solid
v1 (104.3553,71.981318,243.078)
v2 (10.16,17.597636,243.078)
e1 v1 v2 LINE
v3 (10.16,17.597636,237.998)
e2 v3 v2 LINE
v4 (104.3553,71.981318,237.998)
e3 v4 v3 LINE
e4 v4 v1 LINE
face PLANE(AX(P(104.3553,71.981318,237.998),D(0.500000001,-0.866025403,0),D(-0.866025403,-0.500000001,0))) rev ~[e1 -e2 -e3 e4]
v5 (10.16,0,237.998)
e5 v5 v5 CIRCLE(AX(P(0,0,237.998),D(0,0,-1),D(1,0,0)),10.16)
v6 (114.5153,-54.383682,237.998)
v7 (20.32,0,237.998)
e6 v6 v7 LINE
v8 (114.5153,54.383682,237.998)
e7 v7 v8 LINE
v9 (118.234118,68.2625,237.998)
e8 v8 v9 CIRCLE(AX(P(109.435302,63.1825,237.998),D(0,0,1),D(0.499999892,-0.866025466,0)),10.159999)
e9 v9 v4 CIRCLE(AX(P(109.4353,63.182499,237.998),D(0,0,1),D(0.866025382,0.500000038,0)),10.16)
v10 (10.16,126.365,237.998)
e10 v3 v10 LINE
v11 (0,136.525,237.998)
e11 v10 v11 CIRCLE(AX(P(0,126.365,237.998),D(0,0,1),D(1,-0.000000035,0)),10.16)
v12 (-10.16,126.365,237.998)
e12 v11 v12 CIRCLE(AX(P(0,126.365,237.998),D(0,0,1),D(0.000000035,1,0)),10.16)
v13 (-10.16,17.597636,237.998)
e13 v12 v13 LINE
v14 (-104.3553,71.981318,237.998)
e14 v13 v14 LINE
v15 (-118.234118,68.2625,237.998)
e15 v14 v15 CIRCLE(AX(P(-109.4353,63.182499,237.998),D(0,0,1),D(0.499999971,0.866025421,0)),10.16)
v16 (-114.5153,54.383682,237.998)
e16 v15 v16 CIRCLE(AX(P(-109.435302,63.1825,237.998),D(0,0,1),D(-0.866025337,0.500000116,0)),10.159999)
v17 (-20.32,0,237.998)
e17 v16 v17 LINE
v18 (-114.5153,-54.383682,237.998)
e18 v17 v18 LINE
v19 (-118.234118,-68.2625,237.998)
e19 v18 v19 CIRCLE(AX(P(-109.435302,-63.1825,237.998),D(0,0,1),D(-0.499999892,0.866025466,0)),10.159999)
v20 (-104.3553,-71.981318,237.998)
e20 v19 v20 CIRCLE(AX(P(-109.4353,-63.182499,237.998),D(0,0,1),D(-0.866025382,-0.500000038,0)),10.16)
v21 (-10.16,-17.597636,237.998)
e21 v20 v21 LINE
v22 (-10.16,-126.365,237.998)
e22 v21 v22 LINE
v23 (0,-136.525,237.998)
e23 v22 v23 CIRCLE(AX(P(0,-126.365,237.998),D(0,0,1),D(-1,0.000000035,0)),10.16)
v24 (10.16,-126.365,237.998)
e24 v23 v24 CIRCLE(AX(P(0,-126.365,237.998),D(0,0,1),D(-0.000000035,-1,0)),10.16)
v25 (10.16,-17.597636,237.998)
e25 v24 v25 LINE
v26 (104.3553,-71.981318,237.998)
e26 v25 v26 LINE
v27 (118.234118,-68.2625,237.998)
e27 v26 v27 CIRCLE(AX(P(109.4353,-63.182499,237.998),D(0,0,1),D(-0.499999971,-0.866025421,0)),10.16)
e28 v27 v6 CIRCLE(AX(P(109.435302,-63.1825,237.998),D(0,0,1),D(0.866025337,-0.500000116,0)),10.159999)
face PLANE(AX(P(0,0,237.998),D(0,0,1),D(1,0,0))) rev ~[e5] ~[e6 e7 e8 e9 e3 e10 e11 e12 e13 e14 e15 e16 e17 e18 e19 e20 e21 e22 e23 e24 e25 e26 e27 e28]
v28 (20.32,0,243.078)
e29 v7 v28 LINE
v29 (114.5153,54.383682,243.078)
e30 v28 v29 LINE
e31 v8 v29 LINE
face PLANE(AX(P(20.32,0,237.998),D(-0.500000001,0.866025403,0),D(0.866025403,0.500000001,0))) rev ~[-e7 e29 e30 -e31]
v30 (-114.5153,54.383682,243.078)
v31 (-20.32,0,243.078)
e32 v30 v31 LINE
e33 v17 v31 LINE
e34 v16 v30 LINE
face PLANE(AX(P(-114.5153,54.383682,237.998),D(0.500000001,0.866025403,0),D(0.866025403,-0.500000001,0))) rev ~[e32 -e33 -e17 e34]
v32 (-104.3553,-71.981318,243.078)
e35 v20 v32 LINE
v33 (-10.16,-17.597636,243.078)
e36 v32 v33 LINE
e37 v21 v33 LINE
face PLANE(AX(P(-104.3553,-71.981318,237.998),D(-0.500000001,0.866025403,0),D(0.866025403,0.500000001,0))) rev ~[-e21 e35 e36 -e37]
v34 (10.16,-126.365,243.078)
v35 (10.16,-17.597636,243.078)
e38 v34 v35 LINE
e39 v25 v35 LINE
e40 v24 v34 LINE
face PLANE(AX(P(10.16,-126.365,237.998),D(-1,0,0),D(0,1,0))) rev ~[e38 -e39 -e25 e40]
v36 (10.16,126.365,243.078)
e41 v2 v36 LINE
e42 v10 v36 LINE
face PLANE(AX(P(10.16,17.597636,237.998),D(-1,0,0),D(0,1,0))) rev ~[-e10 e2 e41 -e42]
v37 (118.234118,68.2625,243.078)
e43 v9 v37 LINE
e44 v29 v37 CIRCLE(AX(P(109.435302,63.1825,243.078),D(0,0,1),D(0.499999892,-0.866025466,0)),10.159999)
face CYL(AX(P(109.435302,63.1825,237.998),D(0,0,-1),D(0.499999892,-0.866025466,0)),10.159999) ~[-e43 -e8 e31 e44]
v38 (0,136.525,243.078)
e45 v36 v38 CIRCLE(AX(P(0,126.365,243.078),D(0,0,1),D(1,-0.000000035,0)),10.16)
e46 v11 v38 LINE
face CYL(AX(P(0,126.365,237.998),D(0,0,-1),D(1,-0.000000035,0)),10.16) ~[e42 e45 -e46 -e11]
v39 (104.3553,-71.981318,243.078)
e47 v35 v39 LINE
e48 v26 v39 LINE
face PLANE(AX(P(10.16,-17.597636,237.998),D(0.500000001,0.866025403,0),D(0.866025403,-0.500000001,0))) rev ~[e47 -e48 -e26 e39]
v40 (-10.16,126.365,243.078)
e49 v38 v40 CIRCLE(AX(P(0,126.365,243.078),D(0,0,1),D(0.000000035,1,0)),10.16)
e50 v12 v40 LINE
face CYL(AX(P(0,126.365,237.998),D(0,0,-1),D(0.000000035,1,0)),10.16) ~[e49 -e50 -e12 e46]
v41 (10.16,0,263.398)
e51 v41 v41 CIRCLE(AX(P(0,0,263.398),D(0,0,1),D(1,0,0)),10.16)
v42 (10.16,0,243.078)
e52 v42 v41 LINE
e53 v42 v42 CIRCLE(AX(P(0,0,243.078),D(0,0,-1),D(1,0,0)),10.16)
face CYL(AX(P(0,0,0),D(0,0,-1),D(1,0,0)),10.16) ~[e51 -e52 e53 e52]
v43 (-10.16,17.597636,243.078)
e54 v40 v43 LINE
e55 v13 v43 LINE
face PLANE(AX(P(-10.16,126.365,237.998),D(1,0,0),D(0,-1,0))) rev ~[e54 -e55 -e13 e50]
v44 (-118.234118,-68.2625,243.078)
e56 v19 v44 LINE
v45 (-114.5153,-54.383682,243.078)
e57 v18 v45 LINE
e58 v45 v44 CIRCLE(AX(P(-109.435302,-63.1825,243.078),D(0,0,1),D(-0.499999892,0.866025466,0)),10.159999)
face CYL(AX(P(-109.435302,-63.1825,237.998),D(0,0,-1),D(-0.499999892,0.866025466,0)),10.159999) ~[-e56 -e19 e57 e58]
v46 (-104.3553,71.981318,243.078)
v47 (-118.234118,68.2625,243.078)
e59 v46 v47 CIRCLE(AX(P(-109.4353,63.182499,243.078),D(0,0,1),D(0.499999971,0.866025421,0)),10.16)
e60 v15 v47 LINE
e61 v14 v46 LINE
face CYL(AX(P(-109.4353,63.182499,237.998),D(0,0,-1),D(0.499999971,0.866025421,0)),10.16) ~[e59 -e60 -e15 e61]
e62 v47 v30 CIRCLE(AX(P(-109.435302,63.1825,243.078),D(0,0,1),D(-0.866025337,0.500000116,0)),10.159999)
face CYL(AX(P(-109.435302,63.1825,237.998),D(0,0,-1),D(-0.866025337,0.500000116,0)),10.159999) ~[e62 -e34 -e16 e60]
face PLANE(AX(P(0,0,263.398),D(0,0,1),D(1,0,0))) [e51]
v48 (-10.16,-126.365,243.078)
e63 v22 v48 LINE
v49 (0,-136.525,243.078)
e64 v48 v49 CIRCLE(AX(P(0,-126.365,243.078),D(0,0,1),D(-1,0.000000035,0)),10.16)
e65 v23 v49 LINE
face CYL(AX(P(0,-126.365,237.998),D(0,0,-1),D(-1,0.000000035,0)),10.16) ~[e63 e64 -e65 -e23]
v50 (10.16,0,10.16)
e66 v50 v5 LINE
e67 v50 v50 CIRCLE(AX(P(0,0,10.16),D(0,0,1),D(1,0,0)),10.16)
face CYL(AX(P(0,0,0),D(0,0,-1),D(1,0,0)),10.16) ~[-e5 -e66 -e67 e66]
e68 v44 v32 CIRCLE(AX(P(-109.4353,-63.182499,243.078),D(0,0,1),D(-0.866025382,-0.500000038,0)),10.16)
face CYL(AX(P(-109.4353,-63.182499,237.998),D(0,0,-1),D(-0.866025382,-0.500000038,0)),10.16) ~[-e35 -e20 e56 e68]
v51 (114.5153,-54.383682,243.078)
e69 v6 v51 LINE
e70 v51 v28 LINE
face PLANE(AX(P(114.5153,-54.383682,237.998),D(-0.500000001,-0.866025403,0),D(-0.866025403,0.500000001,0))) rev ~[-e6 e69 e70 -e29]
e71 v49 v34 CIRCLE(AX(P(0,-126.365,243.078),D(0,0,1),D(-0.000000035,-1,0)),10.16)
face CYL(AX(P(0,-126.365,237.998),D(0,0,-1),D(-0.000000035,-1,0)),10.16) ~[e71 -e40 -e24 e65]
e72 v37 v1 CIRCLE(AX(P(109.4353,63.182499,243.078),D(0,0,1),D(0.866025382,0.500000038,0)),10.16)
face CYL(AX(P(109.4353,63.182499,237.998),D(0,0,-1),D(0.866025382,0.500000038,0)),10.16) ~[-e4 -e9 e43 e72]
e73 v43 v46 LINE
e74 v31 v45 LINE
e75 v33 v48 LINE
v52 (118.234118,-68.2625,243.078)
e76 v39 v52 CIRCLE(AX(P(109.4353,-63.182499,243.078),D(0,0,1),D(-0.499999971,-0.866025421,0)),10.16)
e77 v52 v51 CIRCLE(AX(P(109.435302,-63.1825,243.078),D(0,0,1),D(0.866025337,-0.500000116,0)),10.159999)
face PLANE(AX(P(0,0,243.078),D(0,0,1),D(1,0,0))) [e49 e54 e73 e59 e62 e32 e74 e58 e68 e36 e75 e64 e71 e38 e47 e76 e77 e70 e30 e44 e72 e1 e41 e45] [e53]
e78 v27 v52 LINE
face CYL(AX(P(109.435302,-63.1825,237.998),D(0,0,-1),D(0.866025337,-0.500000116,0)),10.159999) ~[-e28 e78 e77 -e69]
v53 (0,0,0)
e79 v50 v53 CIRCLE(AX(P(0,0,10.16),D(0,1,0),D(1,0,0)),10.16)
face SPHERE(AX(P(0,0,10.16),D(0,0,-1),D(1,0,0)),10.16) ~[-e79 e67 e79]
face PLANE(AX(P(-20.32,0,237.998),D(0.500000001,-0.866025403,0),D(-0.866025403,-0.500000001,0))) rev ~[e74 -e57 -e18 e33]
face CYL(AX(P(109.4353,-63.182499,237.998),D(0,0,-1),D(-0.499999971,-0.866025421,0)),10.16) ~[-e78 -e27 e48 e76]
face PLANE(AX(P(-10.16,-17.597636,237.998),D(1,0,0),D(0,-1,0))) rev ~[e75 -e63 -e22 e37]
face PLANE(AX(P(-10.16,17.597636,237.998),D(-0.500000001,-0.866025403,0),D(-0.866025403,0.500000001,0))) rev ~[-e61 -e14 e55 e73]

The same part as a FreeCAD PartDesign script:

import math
import FreeCAD as App
import Part
import Sketcher
Q = App.Units.Quantity


def edges_at(feature, points):
    """Names of the edges that pass closest to the given points."""
    edges = feature.Shape.Edges
    near = lambda p: min(range(len(edges)), key=lambda i: edges[i].distToShape(Part.Vertex(*p))[0])
    return sorted({f"Edge{near(p) + 1}" for p in points})

doc = App.newDocument("Part")
body = doc.addObject("PartDesign::Body", "Body")

sketch1 = doc.addObject("Sketcher::SketchObject", "Sketch")
body.addObject(sketch1)
sketch1.AttachmentSupport = (doc.XY_Plane, [""])
sketch1.MapMode = "FlatFace"
sketch1.addGeometry(Part.Circle(App.Vector(0, 0, 0), App.Vector(0, 0, 1), 10), False)
sketch1.addConstraint([
    Sketcher.Constraint("Coincident", 0, 3, -1, 1),
    Sketcher.Constraint("Diameter", 0, Q("0.8 in")),
])
pad1 = doc.addObject("PartDesign::Pad", "Pad")
body.addObject(pad1)
pad1.Profile = sketch1
pad1.Length = Q("10.37 in")

sketch2 = doc.addObject("Sketcher::SketchObject", "Sketch001")
body.addObject(sketch2)
sketch2.AttachmentSupport = (doc.XY_Plane, [""])
sketch2.MapMode = "FlatFace"
sketch2.AttachmentOffset = App.Placement(App.Vector(0, 0, 9.37 * 25.4), App.Rotation())
sketch2.addGeometry([
    Part.ArcOfCircle(Part.Circle(App.Vector(0, 126, 0), App.Vector(0, 0, 1), 10), math.radians(90), math.radians(180)),
    Part.LineSegment(App.Vector(-10, 126, 0), App.Vector(-10, 18, 0)),
    Part.LineSegment(App.Vector(-10, 18, 0), App.Vector(-104, 72, 0)),
    Part.ArcOfCircle(Part.Circle(App.Vector(-109, 63, 0), App.Vector(0, 0, 1), 10), math.radians(60), math.radians(150)),
    Part.ArcOfCircle(Part.Circle(App.Vector(-109, 63, 0), App.Vector(0, 0, 1), 10), math.radians(150), math.radians(240)),
    Part.LineSegment(App.Vector(-115, 54, 0), App.Vector(-20, 0, 0)),
    Part.LineSegment(App.Vector(-20, 0, 0), App.Vector(-115, -54, 0)),
    Part.ArcOfCircle(Part.Circle(App.Vector(-109, -63, 0), App.Vector(0, 0, 1), 10), math.radians(120), math.radians(210)),
    Part.ArcOfCircle(Part.Circle(App.Vector(-109, -63, 0), App.Vector(0, 0, 1), 10), math.radians(-150), math.radians(-60)),
    Part.LineSegment(App.Vector(-104, -72, 0), App.Vector(-10, -18, 0)),
    Part.LineSegment(App.Vector(-10, -18, 0), App.Vector(-10, -126, 0)),
    Part.ArcOfCircle(Part.Circle(App.Vector(0, -126, 0), App.Vector(0, 0, 1), 10), math.radians(180), math.radians(270)),
    Part.ArcOfCircle(Part.Circle(App.Vector(0, -126, 0), App.Vector(0, 0, 1), 10), math.radians(-90), math.radians(0)),
    Part.LineSegment(App.Vector(10, -126, 0), App.Vector(10, -18, 0)),
    Part.LineSegment(App.Vector(10, -18, 0), App.Vector(104, -72, 0)),
    Part.ArcOfCircle(Part.Circle(App.Vector(109, -63, 0), App.Vector(0, 0, 1), 10), math.radians(-120), math.radians(-30)),
    Part.ArcOfCircle(Part.Circle(App.Vector(109, -63, 0), App.Vector(0, 0, 1), 10), math.radians(-30), math.radians(60)),
    Part.LineSegment(App.Vector(115, -54, 0), App.Vector(20, 0, 0)),
    Part.LineSegment(App.Vector(20, 0, 0), App.Vector(115, 54, 0)),
    Part.ArcOfCircle(Part.Circle(App.Vector(109, 63, 0), App.Vector(0, 0, 1), 10), math.radians(-60), math.radians(30)),
    Part.ArcOfCircle(Part.Circle(App.Vector(109, 63, 0), App.Vector(0, 0, 1), 10), math.radians(30), math.radians(120)),
    Part.LineSegment(App.Vector(104, 72, 0), App.Vector(10, 18, 0)),
    Part.LineSegment(App.Vector(10, 18, 0), App.Vector(10, 126, 0)),
    Part.ArcOfCircle(Part.Circle(App.Vector(0, 126, 0), App.Vector(0, 0, 1), 10), math.radians(0), math.radians(90)),
], False)
sketch2.addConstraint([
    Sketcher.Constraint("Tangent", 0, 2, 1, 1),
    Sketcher.Constraint("Coincident", 1, 2, 2, 1),
    Sketcher.Constraint("Tangent", 2, 2, 3, 1),
    Sketcher.Constraint("Tangent", 3, 2, 4, 1),
    Sketcher.Constraint("Tangent", 4, 2, 5, 1),
    Sketcher.Constraint("Coincident", 5, 2, 6, 1),
    Sketcher.Constraint("Tangent", 6, 2, 7, 1),
    Sketcher.Constraint("Tangent", 7, 2, 8, 1),
    Sketcher.Constraint("Tangent", 8, 2, 9, 1),
    Sketcher.Constraint("Coincident", 9, 2, 10, 1),
    Sketcher.Constraint("Tangent", 10, 2, 11, 1),
    Sketcher.Constraint("Tangent", 11, 2, 12, 1),
    Sketcher.Constraint("Tangent", 12, 2, 13, 1),
    Sketcher.Constraint("Coincident", 13, 2, 14, 1),
    Sketcher.Constraint("Tangent", 14, 2, 15, 1),
    Sketcher.Constraint("Tangent", 15, 2, 16, 1),
    Sketcher.Constraint("Tangent", 16, 2, 17, 1),
    Sketcher.Constraint("Coincident", 17, 2, 18, 1),
    Sketcher.Constraint("Tangent", 18, 2, 19, 1),
    Sketcher.Constraint("Tangent", 19, 2, 20, 1),
    Sketcher.Constraint("Tangent", 20, 2, 21, 1),
    Sketcher.Constraint("Coincident", 21, 2, 22, 1),
    Sketcher.Constraint("Tangent", 22, 2, 23, 1),
    Sketcher.Constraint("Tangent", 23, 2, 0, 1),
    Sketcher.Constraint("Vertical", 1),
    Sketcher.Constraint("Vertical", 10),
    Sketcher.Constraint("Vertical", 13),
    Sketcher.Constraint("Vertical", 22),
    Sketcher.Constraint("Equal", 0, 3),
    Sketcher.Constraint("Equal", 3, 4),
    Sketcher.Constraint("Equal", 4, 7),
    Sketcher.Constraint("Equal", 7, 8),
    Sketcher.Constraint("Equal", 8, 11),
    Sketcher.Constraint("Equal", 11, 12),
    Sketcher.Constraint("Equal", 12, 15),
    Sketcher.Constraint("Equal", 15, 16),
    Sketcher.Constraint("Equal", 16, 19),
    Sketcher.Constraint("Equal", 19, 20),
    Sketcher.Constraint("Equal", 20, 23),
    Sketcher.Constraint("Symmetric", 0, 3, 11, 3, -1, 1),
    Sketcher.Constraint("Symmetric", 3, 3, 15, 3, -1, 1),
    Sketcher.Constraint("Symmetric", 7, 3, 19, 3, -1, 1),
    Sketcher.Constraint("Symmetric", 5, 2, 17, 2, -1, 1),
    Sketcher.Constraint("Symmetric", 7, 3, 15, 3, -2),
    Sketcher.Constraint("Symmetric", 9, 2, 13, 2, -2),
    Sketcher.Constraint("PointOnObject", 5, 2, -1),
    Sketcher.Constraint("PointOnObject", 11, 2, -2),
    Sketcher.Constraint("PointOnObject", 23, 2, -2),
    Sketcher.Constraint("Parallel", 2, 5),
    Sketcher.Constraint("Parallel", 6, 9),
    Sketcher.Constraint("Parallel", 18, 21),
    Sketcher.Constraint("Horizontal", 7, 2, 15, 2),
    Sketcher.Constraint("Horizontal", 3, 2, 19, 2),
    Sketcher.Constraint("Vertical", 3, 2, 7, 2),
    Sketcher.Constraint("Equal", 2, 5),
    Sketcher.Constraint("Radius", 0, Q("0.4 in")),
    Sketcher.Constraint("Angle", 2, Q("150 deg")),
    Sketcher.Constraint("DistanceY", 4, 3, 3, 2, Q("0.2 in")),
    Sketcher.Constraint("DistanceY", 11, 3, 0, 3, Q("9.95 in")),
    Sketcher.Constraint("DistanceY", -1, 1, 3, 2, Q("2.6875 in")),
])
pad2 = doc.addObject("PartDesign::Pad", "Pad001")
body.addObject(pad2)
pad2.Profile = sketch2
pad2.Length = Q("0.2 in")
doc.recompute()

fillet = doc.addObject("PartDesign::Fillet", "Fillet")
body.addObject(fillet)
fillet.Base = (pad2, edges_at(pad2, [(-10.16, 0, 0)]))
fillet.Radius = Q("0.4 in")

doc.recompute()
